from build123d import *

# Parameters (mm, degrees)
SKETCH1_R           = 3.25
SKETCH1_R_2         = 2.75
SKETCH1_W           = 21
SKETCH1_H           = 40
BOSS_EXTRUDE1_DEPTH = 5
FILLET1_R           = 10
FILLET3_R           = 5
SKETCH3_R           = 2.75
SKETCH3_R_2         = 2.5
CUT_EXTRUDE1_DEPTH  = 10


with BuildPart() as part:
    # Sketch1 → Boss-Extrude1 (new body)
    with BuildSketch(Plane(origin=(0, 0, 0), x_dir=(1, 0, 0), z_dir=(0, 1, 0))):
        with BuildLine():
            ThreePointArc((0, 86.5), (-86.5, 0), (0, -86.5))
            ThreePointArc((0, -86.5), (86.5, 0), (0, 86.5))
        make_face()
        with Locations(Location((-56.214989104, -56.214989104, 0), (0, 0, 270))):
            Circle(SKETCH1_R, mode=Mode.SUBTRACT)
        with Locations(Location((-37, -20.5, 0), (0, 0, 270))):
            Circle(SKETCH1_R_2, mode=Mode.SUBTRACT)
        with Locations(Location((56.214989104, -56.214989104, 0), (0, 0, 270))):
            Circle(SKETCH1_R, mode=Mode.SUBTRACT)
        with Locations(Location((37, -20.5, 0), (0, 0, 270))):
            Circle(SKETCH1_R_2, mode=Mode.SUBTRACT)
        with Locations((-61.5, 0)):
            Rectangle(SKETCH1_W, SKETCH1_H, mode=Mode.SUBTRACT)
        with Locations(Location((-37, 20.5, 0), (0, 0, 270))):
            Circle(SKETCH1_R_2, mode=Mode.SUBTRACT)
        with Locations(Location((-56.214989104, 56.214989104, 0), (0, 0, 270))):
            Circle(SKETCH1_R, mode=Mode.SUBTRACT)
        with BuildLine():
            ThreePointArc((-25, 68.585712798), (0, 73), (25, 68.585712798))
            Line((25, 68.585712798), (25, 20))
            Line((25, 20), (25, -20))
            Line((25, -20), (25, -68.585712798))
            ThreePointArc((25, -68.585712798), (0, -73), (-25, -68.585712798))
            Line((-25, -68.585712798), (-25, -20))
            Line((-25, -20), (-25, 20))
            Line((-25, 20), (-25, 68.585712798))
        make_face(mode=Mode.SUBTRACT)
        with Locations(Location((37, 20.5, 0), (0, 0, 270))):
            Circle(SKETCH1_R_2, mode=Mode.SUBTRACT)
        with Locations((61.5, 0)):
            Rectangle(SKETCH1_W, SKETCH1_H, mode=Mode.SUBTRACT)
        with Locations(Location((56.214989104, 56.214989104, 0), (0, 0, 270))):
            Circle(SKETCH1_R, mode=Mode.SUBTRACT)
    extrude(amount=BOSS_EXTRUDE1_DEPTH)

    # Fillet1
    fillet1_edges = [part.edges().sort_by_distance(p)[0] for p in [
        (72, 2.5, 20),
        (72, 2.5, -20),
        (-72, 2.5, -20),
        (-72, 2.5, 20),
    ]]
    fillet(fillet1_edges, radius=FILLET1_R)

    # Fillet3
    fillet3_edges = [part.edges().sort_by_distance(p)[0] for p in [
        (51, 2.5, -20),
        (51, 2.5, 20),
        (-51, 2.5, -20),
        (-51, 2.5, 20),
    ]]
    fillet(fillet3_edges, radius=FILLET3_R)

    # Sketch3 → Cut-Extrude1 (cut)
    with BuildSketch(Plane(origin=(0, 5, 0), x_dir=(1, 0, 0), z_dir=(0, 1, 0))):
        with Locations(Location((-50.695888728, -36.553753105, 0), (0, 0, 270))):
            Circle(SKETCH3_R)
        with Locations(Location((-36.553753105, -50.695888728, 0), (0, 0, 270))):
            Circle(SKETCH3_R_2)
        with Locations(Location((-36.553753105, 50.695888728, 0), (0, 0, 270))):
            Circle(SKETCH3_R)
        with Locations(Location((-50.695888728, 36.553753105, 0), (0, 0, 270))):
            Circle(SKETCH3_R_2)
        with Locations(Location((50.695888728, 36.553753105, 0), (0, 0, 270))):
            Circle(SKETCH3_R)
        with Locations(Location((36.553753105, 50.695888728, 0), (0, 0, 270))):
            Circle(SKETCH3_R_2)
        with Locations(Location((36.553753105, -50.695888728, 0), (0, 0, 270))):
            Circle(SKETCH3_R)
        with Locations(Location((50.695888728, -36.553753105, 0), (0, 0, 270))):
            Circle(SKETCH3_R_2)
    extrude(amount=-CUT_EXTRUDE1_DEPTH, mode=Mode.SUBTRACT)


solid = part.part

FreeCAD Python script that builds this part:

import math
import FreeCAD as App
import Part
import Sketcher
from FreeCAD import Vector
Q = App.Units.Quantity


def edges_at(feature, points):
    """Names of the edges that pass closest to the given points."""
    edges = feature.Shape.Edges
    near = lambda p: min(range(len(edges)), key=lambda i: edges[i].distToShape(Part.Vertex(*p))[0])
    return sorted({f"Edge{near(p) + 1}" for p in points})

doc = App.newDocument("Part")
body = doc.addObject("PartDesign::Body", "Body")

# Sketch on XZ plane
sketch1 = body.newObject("Sketcher::SketchObject", "Sketch")
sketch1.AttachmentSupport = (doc.getObject("XZ_Plane"), [""])
sketch1.MapMode = "FlatFace"
sketch1.addGeometry([
    Part.Circle(Vector(0, 0, 0), Vector(0, 0, 1), 86.5),  # 0
    Part.Circle(Vector(-56.2, 56.2, 0), Vector(0, 0, 1), 3.2),  # 1
    Part.Circle(Vector(-37, 20.5, 0), Vector(0, 0, 1), 2.8),  # 2
    Part.Circle(Vector(56.2, 56.2, 0), Vector(0, 0, 1), 3.2),  # 3
    Part.Circle(Vector(37, 20.5, 0), Vector(0, 0, 1), 2.8),  # 4
    Part.LineSegment(Vector(-51, 20, 0), Vector(-72, 20, 0)),  # 5
    Part.LineSegment(Vector(-72, 20, 0), Vector(-72, -20, 0)),  # 6
    Part.LineSegment(Vector(-72, -20, 0), Vector(-51, -20, 0)),  # 7
    Part.LineSegment(Vector(-51, -20, 0), Vector(-51, 20, 0)),  # 8
    Part.Circle(Vector(-37, -20.5, 0), Vector(0, 0, 1), 2.8),  # 9
    Part.Circle(Vector(-56.2, -56.2, 0), Vector(0, 0, 1), 3.2),  # 10
    Part.LineSegment(Vector(-25, 68.6, 0), Vector(-25, -68.6, 0)),  # 11
    Part.ArcOfCircle(Part.Circle(Vector(0, 0, 0), Vector(0, 0, 1), 73), math.radians(-110), math.radians(-70)),  # 12
    Part.LineSegment(Vector(25, -68.6, 0), Vector(25, 68.6, 0)),  # 13
    Part.ArcOfCircle(Part.Circle(Vector(0, 0, 0), Vector(0, 0, 1), 73), math.radians(70), math.radians(110)),  # 14
    Part.LineSegment(Vector(72, 20, 0), Vector(51, 20, 0)),  # 15
    Part.LineSegment(Vector(51, 20, 0), Vector(51, -20, 0)),  # 16
    Part.LineSegment(Vector(51, -20, 0), Vector(72, -20, 0)),  # 17
    Part.LineSegment(Vector(72, -20, 0), Vector(72, 20, 0)),  # 18
    Part.Circle(Vector(37, -20.5, 0), Vector(0, 0, 1), 2.8),  # 19
    Part.Circle(Vector(56.2, -56.2, 0), Vector(0, 0, 1), 3.2),  # 20
], False)
sketch1.addConstraint([
    Sketcher.Constraint("Coincident", 5, 2, 6, 1),
    Sketcher.Constraint("Coincident", 6, 2, 7, 1),
    Sketcher.Constraint("Coincident", 7, 2, 8, 1),
    Sketcher.Constraint("Coincident", 8, 2, 5, 1),
    Sketcher.Constraint("Coincident", 11, 2, 12, 1),
    Sketcher.Constraint("Coincident", 12, 2, 13, 1),
    Sketcher.Constraint("Coincident", 13, 2, 14, 1),
    Sketcher.Constraint("Coincident", 14, 2, 11, 1),
    Sketcher.Constraint("Coincident", 15, 2, 16, 1),
    Sketcher.Constraint("Coincident", 16, 2, 17, 1),
    Sketcher.Constraint("Coincident", 17, 2, 18, 1),
    Sketcher.Constraint("Coincident", 18, 2, 15, 1),
    Sketcher.Constraint("Horizontal", 5),
    Sketcher.Constraint("Vertical", 6),
    Sketcher.Constraint("Horizontal", 7),
    Sketcher.Constraint("Vertical", 8),
    Sketcher.Constraint("Vertical", 11),
    Sketcher.Constraint("Vertical", 13),
    Sketcher.Constraint("Horizontal", 15),
    Sketcher.Constraint("Vertical", 16),
    Sketcher.Constraint("Horizontal", 17),
    Sketcher.Constraint("Vertical", 18),
    Sketcher.Constraint("Coincident", 0, 3, -1, 1),
    Sketcher.Constraint("Coincident", 12, 3, -1, 1),
    Sketcher.Constraint("Coincident", 14, 3, -1, 1),
    Sketcher.Constraint("Equal", 1, 3),
    Sketcher.Constraint("Equal", 2, 4),
    Sketcher.Constraint("Equal", 4, 9),
    Sketcher.Constraint("Equal", 3, 10),
    Sketcher.Constraint("Equal", 12, 14),
    Sketcher.Constraint("Equal", 9, 19),
    Sketcher.Constraint("Equal", 10, 20),
    Sketcher.Constraint("Symmetric", 4, 3, 9, 3, -1, 1),
    Sketcher.Constraint("Symmetric", 3, 3, 10, 3, -1, 1),
    Sketcher.Constraint("Symmetric", 2, 3, 19, 3, -1, 1),
    Sketcher.Constraint("Symmetric", 1, 3, 20, 3, -1, 1),
    Sketcher.Constraint("Symmetric", 7, 2, 15, 2, -1, 1),
    Sketcher.Constraint("Symmetric", 5, 2, 17, 2, -1, 1),
    Sketcher.Constraint("Symmetric", 1, 3, 3, 3, -2),
    Sketcher.Constraint("Symmetric", 2, 3, 4, 3, -2),
    Sketcher.Constraint("Horizontal", 11, 2, 12, 2),
    Sketcher.Constraint("Horizontal", 8, 2, 15, 2),
    Sketcher.Constraint("Diameter", 0, Q("173 mm")),
    Sketcher.Constraint("Radius", 12, Q("73 mm")),
    Sketcher.Constraint("Diameter", 1, Q("6.5 mm")),
    Sketcher.Constraint("Diameter", 2, Q("5.5 mm")),
    Sketcher.Constraint("DistanceX", 5, 2, 5, 1, Q("21 mm")),
    Sketcher.Constraint("DistanceY", 6, 2, 6, 1, Q("40 mm")),
    Sketcher.Constraint("DistanceX", 2, 3, -1, 1, Q("37 mm")),
    Sketcher.Constraint("DistanceX", 5, 2, -1, 1, Q("72 mm")),
    Sketcher.Constraint("DistanceX", 11, 2, -1, 1, Q("25 mm")),
    Sketcher.Constraint("DistanceY", 9, 3, 2, 3, Q("41 mm")),
    Sketcher.Constraint("DistanceX", 1, 3, -1, 1, Q("56.214989 mm")),
    Sketcher.Constraint("DistanceY", -1, 1, 1, 3, Q("56.214989 mm")),
])
pad1 = body.newObject("PartDesign::Pad", "Pad")
pad1.Profile = sketch1
pad1.Length = 5
pad1.Reversed = True
doc.recompute()

fillet = body.newObject("PartDesign::Fillet", "Fillet")
fillet.Base = (pad1, edges_at(pad1, [
    (72, 2.5, 20),
    (72, 2.5, -20),
    (-72, 2.5, -20),
    (-72, 2.5, 20),
]))
fillet.Radius = 10
doc.recompute()

fillet2 = body.newObject("PartDesign::Fillet", "Fillet001")
fillet2.Base = (fillet, edges_at(fillet, [
    (51, 2.5, -20),
    (51, 2.5, 20),
    (-51, 2.5, -20),
    (-51, 2.5, 20),
]))
fillet2.Radius = 5

# Sketch on XZ plane
sketch2 = body.newObject("Sketcher::SketchObject", "Sketch001")
sketch2.AttachmentSupport = (doc.getObject("XZ_Plane"), [""])
sketch2.MapMode = "FlatFace"
sketch2.AttachmentOffset = App.Placement(Vector(0, 0, -5), App.Rotation())
sketch2.addGeometry([
    Part.Circle(Vector(-50.7, 36.6, 0), Vector(0, 0, 1), 2.8),  # 0
    Part.Circle(Vector(-36.6, 50.7, 0), Vector(0, 0, 1), 2.5),  # 1
    Part.Circle(Vector(-36.6, -50.7, 0), Vector(0, 0, 1), 2.8),  # 2
    Part.Circle(Vector(-50.7, -36.6, 0), Vector(0, 0, 1), 2.5),  # 3
    Part.Circle(Vector(50.7, -36.6, 0), Vector(0, 0, 1), 2.8),  # 4
    Part.Circle(Vector(36.6, -50.7, 0), Vector(0, 0, 1), 2.5),  # 5
    Part.Circle(Vector(36.6, 50.7, 0), Vector(0, 0, 1), 2.8),  # 6
    Part.Circle(Vector(50.7, 36.6, 0), Vector(0, 0, 1), 2.5),  # 7
], False)
sketch2.addConstraint([
    Sketcher.Constraint("Equal", 0, 2),
    Sketcher.Constraint("Equal", 1, 3),
    Sketcher.Constraint("Equal", 2, 4),
    Sketcher.Constraint("Equal", 3, 5),
    Sketcher.Constraint("Equal", 4, 6),
    Sketcher.Constraint("Equal", 5, 7),
    Sketcher.Constraint("Symmetric", 0, 3, 4, 3, -1, 1),
    Sketcher.Constraint("Symmetric", 1, 3, 5, 3, -1, 1),
    Sketcher.Constraint("Symmetric", 2, 3, 6, 3, -1, 1),
    Sketcher.Constraint("Symmetric", 3, 3, 7, 3, -1, 1),
    Sketcher.Constraint("Symmetric", 3, 3, 4, 3, -2),
    Sketcher.Constraint("Symmetric", 2, 3, 5, 3, -2),
    Sketcher.Constraint("Diameter", 1, Q("5 mm")),
    Sketcher.Constraint("Diameter", 0, Q("5.5 mm")),
    Sketcher.Constraint("DistanceX", 0, 3, -1, 1, Q("50.695889 mm")),
    Sketcher.Constraint("DistanceY", -1, 1, 1, 3, Q("50.695889 mm")),
    Sketcher.Constraint("DistanceY", 2, 3, 0, 3, Q("87.249642 mm")),
    Sketcher.Constraint("DistanceX", 2, 3, 4, 3, Q("87.249642 mm")),
])
pocket1 = body.newObject("PartDesign::Pocket", "Pocket")
pocket1.Profile = sketch2
pocket1.Length = 10
pocket1.Reversed = True

doc.recompute()
